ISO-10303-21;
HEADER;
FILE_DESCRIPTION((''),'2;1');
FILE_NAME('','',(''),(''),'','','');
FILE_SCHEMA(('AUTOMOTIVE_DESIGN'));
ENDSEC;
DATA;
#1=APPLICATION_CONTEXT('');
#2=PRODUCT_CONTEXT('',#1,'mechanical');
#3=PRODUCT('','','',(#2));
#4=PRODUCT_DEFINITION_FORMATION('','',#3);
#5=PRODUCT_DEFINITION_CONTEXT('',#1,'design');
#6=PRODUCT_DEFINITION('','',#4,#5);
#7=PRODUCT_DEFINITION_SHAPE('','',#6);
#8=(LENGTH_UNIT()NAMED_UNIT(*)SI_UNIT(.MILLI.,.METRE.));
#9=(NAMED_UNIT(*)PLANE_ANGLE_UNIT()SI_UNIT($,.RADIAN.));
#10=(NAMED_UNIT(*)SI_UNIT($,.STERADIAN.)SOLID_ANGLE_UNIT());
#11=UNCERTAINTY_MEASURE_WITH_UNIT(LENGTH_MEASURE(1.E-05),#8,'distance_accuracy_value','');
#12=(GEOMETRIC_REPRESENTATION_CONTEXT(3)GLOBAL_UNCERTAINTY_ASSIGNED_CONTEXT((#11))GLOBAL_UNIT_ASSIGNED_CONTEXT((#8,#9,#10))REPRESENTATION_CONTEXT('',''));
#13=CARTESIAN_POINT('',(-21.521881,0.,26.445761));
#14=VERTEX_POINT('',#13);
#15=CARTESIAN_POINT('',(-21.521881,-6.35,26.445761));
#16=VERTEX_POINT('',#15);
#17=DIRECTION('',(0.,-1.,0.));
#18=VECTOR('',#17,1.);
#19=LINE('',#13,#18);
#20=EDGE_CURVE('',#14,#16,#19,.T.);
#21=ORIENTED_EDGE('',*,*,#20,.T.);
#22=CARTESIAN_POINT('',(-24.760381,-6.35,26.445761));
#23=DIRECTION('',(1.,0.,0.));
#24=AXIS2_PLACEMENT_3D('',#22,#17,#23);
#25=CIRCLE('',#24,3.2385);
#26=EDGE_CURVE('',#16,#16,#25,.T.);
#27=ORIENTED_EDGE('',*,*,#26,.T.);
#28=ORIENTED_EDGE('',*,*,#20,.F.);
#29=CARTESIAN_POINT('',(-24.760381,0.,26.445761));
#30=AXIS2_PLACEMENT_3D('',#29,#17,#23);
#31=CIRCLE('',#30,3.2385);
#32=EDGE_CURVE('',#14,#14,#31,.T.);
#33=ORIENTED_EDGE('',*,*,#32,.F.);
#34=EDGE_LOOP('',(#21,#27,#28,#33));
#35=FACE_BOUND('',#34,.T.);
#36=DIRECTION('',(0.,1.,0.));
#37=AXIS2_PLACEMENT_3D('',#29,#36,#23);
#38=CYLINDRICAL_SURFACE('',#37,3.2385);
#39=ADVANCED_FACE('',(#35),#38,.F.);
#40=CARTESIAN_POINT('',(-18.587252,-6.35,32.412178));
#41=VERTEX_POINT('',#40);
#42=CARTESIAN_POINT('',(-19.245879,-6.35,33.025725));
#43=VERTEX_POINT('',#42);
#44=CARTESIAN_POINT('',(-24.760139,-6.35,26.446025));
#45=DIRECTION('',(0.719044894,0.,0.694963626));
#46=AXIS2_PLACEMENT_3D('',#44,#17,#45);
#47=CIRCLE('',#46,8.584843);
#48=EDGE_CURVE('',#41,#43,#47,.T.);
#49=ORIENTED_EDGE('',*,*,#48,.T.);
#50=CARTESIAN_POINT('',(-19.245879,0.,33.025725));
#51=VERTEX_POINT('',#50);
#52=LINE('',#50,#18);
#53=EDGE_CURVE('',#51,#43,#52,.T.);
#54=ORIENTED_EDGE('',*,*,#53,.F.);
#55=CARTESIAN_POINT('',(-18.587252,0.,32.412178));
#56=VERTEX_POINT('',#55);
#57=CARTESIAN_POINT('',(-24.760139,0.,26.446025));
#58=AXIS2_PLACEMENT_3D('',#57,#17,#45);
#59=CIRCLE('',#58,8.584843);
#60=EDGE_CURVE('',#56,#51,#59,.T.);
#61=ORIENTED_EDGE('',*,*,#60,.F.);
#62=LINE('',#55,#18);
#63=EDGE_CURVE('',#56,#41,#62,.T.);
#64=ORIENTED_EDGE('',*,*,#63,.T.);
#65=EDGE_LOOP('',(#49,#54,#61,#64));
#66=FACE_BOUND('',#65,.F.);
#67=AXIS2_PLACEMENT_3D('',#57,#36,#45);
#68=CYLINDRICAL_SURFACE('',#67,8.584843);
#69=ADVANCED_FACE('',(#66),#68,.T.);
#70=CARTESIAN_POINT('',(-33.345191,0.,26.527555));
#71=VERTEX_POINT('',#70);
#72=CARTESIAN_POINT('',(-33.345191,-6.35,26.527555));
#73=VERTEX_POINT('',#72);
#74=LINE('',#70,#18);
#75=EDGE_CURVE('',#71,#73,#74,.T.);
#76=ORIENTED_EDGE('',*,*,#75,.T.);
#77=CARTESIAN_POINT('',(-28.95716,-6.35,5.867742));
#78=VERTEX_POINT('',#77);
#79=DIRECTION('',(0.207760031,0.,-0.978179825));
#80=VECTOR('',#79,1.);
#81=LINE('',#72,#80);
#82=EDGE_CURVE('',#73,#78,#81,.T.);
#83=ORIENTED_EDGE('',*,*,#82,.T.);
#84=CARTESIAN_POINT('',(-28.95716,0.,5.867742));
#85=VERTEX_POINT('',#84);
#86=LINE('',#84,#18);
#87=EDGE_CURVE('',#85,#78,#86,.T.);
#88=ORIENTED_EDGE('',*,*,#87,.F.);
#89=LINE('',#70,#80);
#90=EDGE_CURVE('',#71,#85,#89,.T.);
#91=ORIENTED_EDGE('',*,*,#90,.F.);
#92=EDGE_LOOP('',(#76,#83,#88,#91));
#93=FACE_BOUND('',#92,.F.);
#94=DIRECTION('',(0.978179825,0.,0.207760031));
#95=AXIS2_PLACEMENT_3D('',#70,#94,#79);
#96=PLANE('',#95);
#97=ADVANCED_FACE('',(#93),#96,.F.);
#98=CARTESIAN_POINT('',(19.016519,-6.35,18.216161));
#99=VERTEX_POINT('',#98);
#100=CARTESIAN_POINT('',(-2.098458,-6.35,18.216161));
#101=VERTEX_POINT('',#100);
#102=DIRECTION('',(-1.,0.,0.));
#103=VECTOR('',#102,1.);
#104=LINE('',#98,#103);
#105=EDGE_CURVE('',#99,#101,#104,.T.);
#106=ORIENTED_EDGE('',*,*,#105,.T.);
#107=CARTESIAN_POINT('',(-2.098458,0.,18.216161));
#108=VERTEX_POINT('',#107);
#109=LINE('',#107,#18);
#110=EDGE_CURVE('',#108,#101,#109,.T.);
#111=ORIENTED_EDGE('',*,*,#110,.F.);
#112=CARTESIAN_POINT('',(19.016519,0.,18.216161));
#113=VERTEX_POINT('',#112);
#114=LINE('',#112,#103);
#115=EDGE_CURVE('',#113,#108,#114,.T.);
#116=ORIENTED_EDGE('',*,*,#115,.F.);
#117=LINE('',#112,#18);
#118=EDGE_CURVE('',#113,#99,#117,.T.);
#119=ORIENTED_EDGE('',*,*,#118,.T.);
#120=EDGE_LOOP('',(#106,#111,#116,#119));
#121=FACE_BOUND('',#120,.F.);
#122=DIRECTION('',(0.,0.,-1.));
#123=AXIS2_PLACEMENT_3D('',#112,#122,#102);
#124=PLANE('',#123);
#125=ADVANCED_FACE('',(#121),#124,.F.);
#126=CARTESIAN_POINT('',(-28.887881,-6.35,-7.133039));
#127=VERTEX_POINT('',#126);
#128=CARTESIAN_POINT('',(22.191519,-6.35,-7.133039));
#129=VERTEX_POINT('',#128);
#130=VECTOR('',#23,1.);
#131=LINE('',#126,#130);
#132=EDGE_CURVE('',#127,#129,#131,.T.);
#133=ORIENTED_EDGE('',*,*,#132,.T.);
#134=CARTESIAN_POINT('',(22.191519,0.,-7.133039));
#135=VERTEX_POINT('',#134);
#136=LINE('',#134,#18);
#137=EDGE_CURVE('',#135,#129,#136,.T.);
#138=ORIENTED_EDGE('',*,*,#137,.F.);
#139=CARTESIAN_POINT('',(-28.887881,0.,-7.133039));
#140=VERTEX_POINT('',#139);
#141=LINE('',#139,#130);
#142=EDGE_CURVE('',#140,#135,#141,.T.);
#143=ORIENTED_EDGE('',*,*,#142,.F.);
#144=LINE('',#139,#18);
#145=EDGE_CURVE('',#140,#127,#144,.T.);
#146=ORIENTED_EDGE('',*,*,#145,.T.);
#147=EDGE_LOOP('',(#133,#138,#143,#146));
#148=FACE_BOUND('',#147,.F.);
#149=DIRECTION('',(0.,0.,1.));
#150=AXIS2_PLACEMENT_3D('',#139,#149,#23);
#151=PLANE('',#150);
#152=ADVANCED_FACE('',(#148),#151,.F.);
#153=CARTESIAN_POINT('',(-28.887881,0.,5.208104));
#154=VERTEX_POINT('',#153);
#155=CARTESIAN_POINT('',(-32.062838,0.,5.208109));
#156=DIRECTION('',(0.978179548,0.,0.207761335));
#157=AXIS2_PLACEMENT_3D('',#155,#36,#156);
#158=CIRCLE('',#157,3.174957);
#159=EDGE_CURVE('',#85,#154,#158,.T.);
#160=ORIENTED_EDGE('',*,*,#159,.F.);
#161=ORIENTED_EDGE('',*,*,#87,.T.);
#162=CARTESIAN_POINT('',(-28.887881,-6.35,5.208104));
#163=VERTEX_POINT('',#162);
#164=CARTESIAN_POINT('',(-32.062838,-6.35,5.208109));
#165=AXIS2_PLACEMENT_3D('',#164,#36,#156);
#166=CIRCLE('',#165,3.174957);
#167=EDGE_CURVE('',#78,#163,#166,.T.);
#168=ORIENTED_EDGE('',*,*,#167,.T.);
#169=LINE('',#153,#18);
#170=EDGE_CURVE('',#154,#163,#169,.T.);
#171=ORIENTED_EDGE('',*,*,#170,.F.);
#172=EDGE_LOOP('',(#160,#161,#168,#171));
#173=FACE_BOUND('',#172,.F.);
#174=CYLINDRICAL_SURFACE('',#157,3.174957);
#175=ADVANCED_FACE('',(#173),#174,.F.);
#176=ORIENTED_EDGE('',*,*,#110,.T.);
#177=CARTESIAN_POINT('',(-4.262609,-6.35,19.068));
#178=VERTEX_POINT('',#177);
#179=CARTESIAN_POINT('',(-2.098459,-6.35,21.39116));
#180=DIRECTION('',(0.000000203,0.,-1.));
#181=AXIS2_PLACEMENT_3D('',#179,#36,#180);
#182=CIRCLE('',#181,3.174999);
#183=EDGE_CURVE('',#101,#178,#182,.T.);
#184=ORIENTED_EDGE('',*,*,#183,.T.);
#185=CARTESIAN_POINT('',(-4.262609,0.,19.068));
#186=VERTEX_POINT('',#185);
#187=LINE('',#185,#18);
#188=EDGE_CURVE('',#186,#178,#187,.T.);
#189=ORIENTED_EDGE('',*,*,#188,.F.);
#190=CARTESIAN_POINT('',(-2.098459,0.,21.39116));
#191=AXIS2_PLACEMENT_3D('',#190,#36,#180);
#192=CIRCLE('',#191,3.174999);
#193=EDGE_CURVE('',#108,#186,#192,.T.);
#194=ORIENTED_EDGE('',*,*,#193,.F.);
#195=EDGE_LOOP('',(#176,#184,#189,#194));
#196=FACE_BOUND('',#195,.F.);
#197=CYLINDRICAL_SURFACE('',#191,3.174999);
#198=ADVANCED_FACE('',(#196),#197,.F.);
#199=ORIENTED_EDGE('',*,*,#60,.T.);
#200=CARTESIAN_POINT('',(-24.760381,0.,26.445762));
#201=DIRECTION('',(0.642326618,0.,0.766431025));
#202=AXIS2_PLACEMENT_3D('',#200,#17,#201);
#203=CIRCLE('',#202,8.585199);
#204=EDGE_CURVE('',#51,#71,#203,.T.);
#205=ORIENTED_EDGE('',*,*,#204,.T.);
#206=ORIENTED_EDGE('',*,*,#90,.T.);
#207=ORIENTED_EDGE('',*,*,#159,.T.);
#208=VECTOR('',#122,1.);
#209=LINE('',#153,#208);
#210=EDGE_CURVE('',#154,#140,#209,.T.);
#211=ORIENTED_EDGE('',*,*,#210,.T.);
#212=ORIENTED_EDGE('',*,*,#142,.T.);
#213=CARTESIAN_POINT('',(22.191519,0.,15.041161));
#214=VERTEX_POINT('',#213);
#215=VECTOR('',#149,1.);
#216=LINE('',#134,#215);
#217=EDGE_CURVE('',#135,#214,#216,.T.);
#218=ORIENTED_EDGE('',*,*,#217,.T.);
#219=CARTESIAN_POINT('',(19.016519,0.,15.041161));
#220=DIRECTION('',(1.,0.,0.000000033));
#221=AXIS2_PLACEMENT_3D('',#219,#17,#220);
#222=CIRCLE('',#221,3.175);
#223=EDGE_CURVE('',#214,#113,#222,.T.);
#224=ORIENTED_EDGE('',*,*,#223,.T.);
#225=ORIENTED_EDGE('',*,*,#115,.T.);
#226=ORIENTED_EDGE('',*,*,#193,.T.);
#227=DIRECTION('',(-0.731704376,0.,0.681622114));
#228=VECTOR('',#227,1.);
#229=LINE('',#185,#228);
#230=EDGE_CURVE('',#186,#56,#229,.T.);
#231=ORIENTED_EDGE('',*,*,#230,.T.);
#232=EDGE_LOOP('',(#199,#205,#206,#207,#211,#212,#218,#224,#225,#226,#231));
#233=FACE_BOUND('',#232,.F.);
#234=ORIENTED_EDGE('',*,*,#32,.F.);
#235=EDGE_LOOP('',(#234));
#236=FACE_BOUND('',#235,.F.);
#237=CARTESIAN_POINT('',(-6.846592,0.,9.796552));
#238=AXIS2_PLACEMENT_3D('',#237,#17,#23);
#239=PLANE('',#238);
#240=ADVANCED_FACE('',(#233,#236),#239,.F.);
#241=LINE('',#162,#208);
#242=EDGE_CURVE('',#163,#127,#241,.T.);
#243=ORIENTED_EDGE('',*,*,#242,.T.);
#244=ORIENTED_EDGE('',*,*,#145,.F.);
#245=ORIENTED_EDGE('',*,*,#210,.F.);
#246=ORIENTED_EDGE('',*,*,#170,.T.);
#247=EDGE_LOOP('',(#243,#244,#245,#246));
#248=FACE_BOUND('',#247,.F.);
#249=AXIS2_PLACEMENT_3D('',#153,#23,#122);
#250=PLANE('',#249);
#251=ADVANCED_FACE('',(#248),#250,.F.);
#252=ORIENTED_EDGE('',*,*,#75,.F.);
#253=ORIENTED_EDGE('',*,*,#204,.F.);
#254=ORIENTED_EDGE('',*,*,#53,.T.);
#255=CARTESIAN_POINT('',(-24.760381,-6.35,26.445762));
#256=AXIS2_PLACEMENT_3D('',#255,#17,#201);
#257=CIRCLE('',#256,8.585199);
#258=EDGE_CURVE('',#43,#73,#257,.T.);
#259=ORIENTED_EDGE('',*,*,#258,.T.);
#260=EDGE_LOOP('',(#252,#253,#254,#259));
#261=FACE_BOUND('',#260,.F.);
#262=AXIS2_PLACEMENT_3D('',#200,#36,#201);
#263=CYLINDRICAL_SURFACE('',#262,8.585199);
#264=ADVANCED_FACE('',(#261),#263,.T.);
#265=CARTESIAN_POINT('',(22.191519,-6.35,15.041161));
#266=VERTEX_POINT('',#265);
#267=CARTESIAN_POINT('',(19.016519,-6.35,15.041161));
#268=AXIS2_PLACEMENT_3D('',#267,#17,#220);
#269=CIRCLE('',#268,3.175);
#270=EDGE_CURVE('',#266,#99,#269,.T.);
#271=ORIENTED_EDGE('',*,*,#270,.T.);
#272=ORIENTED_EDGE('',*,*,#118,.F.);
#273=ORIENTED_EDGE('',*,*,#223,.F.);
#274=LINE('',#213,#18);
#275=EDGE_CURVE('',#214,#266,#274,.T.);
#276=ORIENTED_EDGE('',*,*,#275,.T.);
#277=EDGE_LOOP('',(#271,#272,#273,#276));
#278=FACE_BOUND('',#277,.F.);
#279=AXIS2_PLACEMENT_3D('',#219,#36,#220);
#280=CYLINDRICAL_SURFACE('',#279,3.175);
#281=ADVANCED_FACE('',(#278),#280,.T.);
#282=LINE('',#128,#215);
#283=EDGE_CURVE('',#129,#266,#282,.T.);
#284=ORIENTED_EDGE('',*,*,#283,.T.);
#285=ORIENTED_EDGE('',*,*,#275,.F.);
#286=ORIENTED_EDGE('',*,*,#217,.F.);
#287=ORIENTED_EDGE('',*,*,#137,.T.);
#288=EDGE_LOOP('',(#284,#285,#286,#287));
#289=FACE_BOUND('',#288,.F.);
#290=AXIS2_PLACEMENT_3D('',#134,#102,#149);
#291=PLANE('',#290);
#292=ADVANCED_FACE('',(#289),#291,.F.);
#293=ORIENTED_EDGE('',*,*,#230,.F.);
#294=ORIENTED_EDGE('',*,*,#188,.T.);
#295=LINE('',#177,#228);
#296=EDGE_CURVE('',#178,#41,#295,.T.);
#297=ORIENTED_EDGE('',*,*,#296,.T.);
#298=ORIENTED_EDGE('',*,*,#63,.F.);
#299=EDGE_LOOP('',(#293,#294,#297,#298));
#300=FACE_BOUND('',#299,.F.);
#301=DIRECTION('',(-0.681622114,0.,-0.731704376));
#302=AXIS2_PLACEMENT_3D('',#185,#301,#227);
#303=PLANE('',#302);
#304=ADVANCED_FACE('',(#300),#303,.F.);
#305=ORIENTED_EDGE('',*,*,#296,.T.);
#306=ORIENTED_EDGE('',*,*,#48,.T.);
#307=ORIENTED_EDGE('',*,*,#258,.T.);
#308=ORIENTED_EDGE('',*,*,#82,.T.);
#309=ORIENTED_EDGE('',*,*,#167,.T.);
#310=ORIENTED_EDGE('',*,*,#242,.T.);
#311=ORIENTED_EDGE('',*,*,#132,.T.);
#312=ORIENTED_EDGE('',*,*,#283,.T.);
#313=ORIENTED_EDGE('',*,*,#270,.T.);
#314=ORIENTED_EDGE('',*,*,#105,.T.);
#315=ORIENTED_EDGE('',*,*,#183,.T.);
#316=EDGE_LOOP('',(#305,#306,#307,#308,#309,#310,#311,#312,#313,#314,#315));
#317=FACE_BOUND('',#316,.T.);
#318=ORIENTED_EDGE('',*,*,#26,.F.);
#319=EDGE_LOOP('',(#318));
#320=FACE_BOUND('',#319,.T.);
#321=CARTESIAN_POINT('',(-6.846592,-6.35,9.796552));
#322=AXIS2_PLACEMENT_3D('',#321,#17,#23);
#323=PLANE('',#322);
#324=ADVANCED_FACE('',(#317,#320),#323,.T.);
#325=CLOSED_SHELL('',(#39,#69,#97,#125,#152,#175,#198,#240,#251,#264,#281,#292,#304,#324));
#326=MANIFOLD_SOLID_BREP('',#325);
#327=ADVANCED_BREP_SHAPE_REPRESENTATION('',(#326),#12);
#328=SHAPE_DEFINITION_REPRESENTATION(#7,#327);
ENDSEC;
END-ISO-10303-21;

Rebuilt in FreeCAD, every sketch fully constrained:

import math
import FreeCAD as App
import Part
import Sketcher
Q = App.Units.Quantity

doc = App.newDocument("Part")
body = doc.addObject("PartDesign::Body", "Body")

# Sketch on XZ plane
sketch1 = body.newObject("Sketcher::SketchObject", "Sketch")
sketch1.AttachmentSupport = (doc.getObject("XZ_Plane"), [""])
sketch1.MapMode = "FlatFace"
sketch1.addGeometry([
    Part.LineSegment(App.Vector(19.016519, 18.216161, 0), App.Vector(-2.098458, 18.216161, 0)),  # 0
    Part.ArcOfCircle(Part.Circle(App.Vector(-2.098459, 21.39116, 0), App.Vector(0, 0, 1), 3.174999), math.radians(-132.970547), math.radians(-89.999988)),  # 1
    Part.LineSegment(App.Vector(-4.262609, 19.068, 0), App.Vector(-18.587252, 32.412178, 0)),  # 2
    Part.ArcOfCircle(Part.Circle(App.Vector(-24.760139, 26.446025, 0), App.Vector(0, 0, 1), 8.584843), math.radians(44.024319), math.radians(50.034581)),  # 3
    Part.ArcOfCircle(Part.Circle(App.Vector(-24.760381, 26.445762, 0), App.Vector(0, 0, 1), 8.585199), math.radians(50.034471), math.radians(179.454121)),  # 4
    Part.LineSegment(App.Vector(-33.345191, 26.527555, 0), App.Vector(-28.95716, 5.867742, 0)),  # 5
    Part.ArcOfCircle(Part.Circle(App.Vector(-32.062838, 5.208109, 0), App.Vector(0, 0, 1), 3.174957), math.radians(-0.000084), math.radians(11.991193)),  # 6
    Part.LineSegment(App.Vector(-28.887881, 5.208104, 0), App.Vector(-28.887881, -7.133039, 0)),  # 7
    Part.LineSegment(App.Vector(-28.887881, -7.133039, 0), App.Vector(22.191519, -7.133039, 0)),  # 8
    Part.LineSegment(App.Vector(22.191519, -7.133039, 0), App.Vector(22.191519, 15.041161, 0)),  # 9
    Part.ArcOfCircle(Part.Circle(App.Vector(19.016519, 15.041161, 0), App.Vector(0, 0, 1), 3.175), math.radians(0.000002), math.radians(89.999998)),  # 10
    Part.Circle(App.Vector(-24.760381, 26.445761, 0), App.Vector(0, 0, 1), 3.2385),  # 11
], False)
sketch1.addConstraint([
    Sketcher.Constraint("Tangent", 0, 2, 1, 2),
    Sketcher.Constraint("Tangent", 1, 1, 2, 1),
    Sketcher.Constraint("Coincident", 2, 2, 3, 1),
    Sketcher.Constraint("Tangent", 3, 2, 4, 1),
    Sketcher.Constraint("Coincident", 4, 2, 5, 1),
    Sketcher.Constraint("Tangent", 5, 2, 6, 2),
    Sketcher.Constraint("Tangent", 6, 1, 7, 1),
    Sketcher.Constraint("Coincident", 7, 2, 8, 1),
    Sketcher.Constraint("Coincident", 8, 2, 9, 1),
    Sketcher.Constraint("Tangent", 9, 2, 10, 1),
    Sketcher.Constraint("Tangent", 10, 2, 0, 1),
    Sketcher.Constraint("Horizontal", 0),
    Sketcher.Constraint("Vertical", 7),
    Sketcher.Constraint("Horizontal", 8),
    Sketcher.Constraint("Vertical", 9),
    Sketcher.Constraint("Coincident", 11, 3, 4, 3),
    Sketcher.Constraint("Equal", 1, 10),
    Sketcher.Constraint("Diameter", 11, Q("0.255 in")),
    Sketcher.Constraint("Radius", 1, Q("0.125 in")),
    Sketcher.Constraint("Radius", 4, Q("0.338 in")),
    Sketcher.Constraint("DistanceX", 8, 1, 8, 2, Q("2.011 in")),
    Sketcher.Constraint("DistanceY", 9, 1, 9, 2, Q("0.873 in")),
    Sketcher.Constraint("DistanceY", 1, 3, 4, 3, Q("0.1990001 in")),
    Sketcher.Constraint("Radius", 3, Q("8.584843 mm")),
    Sketcher.Constraint("Radius", 6, Q("3.174957 mm")),
    Sketcher.Constraint("DistanceX", 6, 3, 1, 3, Q("1.1797 in")),
    Sketcher.Constraint("DistanceX", 4, 3, 10, 3, Q("1.7235 in")),
    Sketcher.Constraint("DistanceY", -1, 1, 1, 1, Q("19.068 mm")),
    Sketcher.Constraint("DistanceY", 3, 3, 3, 2, Q("6.5797 mm")),
    Sketcher.Constraint("Distance", 2, Q("19.577091 mm")),
    Sketcher.Constraint("Distance", 5, Q("21.12067 mm")),
    Sketcher.Constraint("DistanceY", 7, 2, 7, 1, Q("12.341143 mm")),
    Sketcher.Constraint("DistanceX", 1, 3, -1, 1, Q("2.098459 mm")),
])
pad1 = body.newObject("PartDesign::Pad", "Pad")
pad1.Profile = sketch1
pad1.Length = Q("0.25 in")

doc.recompute()
